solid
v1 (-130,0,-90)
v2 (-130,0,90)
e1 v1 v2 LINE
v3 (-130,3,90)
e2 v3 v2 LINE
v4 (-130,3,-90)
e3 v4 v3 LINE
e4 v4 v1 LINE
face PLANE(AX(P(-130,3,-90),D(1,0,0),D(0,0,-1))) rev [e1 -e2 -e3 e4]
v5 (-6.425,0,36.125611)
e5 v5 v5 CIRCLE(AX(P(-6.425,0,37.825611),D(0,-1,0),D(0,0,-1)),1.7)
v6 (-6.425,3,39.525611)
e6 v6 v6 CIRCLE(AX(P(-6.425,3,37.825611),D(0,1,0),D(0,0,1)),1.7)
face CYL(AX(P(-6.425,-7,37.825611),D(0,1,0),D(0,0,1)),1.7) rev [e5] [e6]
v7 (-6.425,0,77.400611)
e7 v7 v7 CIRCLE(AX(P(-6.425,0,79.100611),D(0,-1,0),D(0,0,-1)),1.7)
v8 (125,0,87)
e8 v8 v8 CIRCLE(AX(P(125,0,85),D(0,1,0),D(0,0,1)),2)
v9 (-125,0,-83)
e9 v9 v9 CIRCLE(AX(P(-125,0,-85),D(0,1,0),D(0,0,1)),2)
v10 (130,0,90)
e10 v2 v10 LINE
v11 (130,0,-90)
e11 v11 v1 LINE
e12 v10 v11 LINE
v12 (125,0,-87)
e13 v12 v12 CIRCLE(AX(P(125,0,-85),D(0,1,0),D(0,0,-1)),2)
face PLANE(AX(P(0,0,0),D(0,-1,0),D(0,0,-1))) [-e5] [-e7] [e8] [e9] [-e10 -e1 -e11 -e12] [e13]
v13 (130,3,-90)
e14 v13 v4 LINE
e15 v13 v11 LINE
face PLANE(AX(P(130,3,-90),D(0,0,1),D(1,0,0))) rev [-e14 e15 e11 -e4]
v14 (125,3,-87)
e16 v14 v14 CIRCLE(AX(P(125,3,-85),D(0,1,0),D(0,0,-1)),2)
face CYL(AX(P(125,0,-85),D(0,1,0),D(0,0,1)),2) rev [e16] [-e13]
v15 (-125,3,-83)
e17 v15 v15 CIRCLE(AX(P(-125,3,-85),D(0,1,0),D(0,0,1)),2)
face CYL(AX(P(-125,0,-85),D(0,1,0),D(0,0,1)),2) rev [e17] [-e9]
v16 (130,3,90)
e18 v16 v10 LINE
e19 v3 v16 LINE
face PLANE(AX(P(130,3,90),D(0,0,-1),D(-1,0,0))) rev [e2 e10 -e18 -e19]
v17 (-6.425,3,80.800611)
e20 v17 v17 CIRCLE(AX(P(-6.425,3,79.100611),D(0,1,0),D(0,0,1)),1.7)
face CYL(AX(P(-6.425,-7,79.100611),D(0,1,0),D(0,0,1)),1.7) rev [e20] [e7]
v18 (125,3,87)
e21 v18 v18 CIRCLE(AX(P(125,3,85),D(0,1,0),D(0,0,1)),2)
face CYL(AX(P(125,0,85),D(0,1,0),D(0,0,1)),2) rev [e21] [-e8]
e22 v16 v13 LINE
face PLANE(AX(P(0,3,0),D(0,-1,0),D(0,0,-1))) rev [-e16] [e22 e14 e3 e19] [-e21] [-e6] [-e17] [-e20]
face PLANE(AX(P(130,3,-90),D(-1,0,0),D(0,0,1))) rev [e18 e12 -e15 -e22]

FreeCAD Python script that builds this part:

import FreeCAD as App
import Part
import Sketcher

V = App.Vector


def add_polygon(sketch, points):
    """Adds a closed chain of lines whose ends are joined by coincident constraints."""
    first, n = sketch.GeometryCount, len(points)
    for a, b in zip(points, points[1:] + points[:1]):
        sketch.addGeometry(Part.LineSegment(App.Vector(*a, 0), App.Vector(*b, 0)), False)
    for i in range(n):
        sketch.addConstraint(Sketcher.Constraint("Coincident", first + i, 2, first + (i + 1) % n, 1))

doc = App.newDocument("Part")
params = doc.addObject("Spreadsheet::Sheet", "Params")
for row, (alias, value) in enumerate([
    ("sketch1_width", "260 mm"),
    ("sketch1_height", "180 mm"),
    ("pad1_length", "3 mm"),
    ("sketch2_diameter", "4 mm"),
    ("sketch3_diameter", "3.4 mm"),
    ("pocket2_length", "10 mm"),
], start=1):
    params.set(f"A{row}", alias)
    params.set(f"B{row}", "=" + value)
    params.setAlias(f"B{row}", alias)

body = doc.addObject("PartDesign::Body", "Body")

# Sketch on XZ plane
sketch1 = doc.addObject("Sketcher::SketchObject", "Sketch")
body.addObject(sketch1)
sketch1.AttachmentSupport = (doc.XZ_Plane, [""])
sketch1.MapMode = "FlatFace"
add_polygon(sketch1, [(-130, -90), (-130, 90), (130, 90), (130, -90)])  # lines 0-3
sketch1.addConstraint(Sketcher.Constraint("Vertical", 0))
sketch1.addConstraint(Sketcher.Constraint("Horizontal", 1))
sketch1.addConstraint(Sketcher.Constraint("Vertical", 2))
sketch1.addConstraint(Sketcher.Constraint("Horizontal", 3))
sketch1.addConstraint(Sketcher.Constraint("Symmetric", 0, 2, 2, 2, -1, 1))
sketch1.addConstraint(Sketcher.Constraint("DistanceX", 1, 1, 1, 2, 260.0))
sketch1.addConstraint(Sketcher.Constraint("DistanceY", 0, 1, 0, 2, 180.0))
sketch1.setExpression("Constraints[9]", "Params.sketch1_width")
sketch1.setExpression("Constraints[10]", "Params.sketch1_height")
pad1 = doc.addObject("PartDesign::Pad", "Pad")
body.addObject(pad1)
pad1.Profile = sketch1
pad1.setExpression("Length", "Params.pad1_length")
pad1.Reversed = True

# Sketch on XZ plane
sketch2 = doc.addObject("Sketcher::SketchObject", "Sketch001")
body.addObject(sketch2)
sketch2.AttachmentSupport = (doc.XZ_Plane, [""])
sketch2.MapMode = "FlatFace"
sketch2.AttachmentOffset = App.Placement(V(0, 0, -3), App.Rotation())
sketch2.addGeometry(Part.Circle(V(125, 85, 0), V(0, 0, 1), 2), False)
sketch2.addGeometry(Part.Circle(V(125, -85, 0), V(0, 0, 1), 2), False)
sketch2.addGeometry(Part.Circle(V(-125, -85, 0), V(0, 0, 1), 2), False)
sketch2.addConstraint(Sketcher.Constraint("Equal", 0, 1))
sketch2.addConstraint(Sketcher.Constraint("Equal", 1, 2))
sketch2.addConstraint(Sketcher.Constraint("Symmetric", 0, 3, 2, 3, -1, 1))
sketch2.addConstraint(Sketcher.Constraint("Symmetric", 1, 3, 2, 3, -2))
sketch2.addConstraint(Sketcher.Constraint("Diameter", 0, 4.0))
sketch2.addConstraint(Sketcher.Constraint("DistanceX", -1, 1, 0, 3, 125.0))
sketch2.addConstraint(Sketcher.Constraint("DistanceY", -1, 1, 0, 3, 85.0))
sketch2.setExpression("Constraints[4]", "Params.sketch2_diameter")
pocket1 = doc.addObject("PartDesign::Pocket", "Pocket")
body.addObject(pocket1)
pocket1.Profile = sketch2
pocket1.Type = "ThroughAll"
pocket1.Reversed = True

# Sketch on XZ plane
sketch3 = doc.addObject("Sketcher::SketchObject", "Sketch002")
body.addObject(sketch3)
sketch3.AttachmentSupport = (doc.XZ_Plane, [""])
sketch3.MapMode = "FlatFace"
sketch3.AttachmentOffset = App.Placement(V(0, 0, -3), App.Rotation())
sketch3.addGeometry(Part.Circle(V(-6.4, 79.1, 0), V(0, 0, 1), 1.7), False)
sketch3.addGeometry(Part.Circle(V(-6.4, 37.8, 0), V(0, 0, 1), 1.7), False)
sketch3.addConstraint(Sketcher.Constraint("Equal", 0, 1))
sketch3.addConstraint(Sketcher.Constraint("Vertical", 0, 3, 1, 3))
sketch3.addConstraint(Sketcher.Constraint("Diameter", 0, 3.4))
sketch3.addConstraint(Sketcher.Constraint("DistanceX", 0, 3, -1, 1, 6.425))
sketch3.addConstraint(Sketcher.Constraint("DistanceY", 1, 3, 0, 3, 41.275))
sketch3.addConstraint(Sketcher.Constraint("DistanceY", -1, 1, 0, 3, 79.100611))
sketch3.setExpression("Constraints[2]", "Params.sketch3_diameter")
pocket2 = doc.addObject("PartDesign::Pocket", "Pocket001")
body.addObject(pocket2)
pocket2.Profile = sketch3
pocket2.setExpression("Length", "Params.pocket2_length")
pocket2.Reversed = True

doc.recompute()
